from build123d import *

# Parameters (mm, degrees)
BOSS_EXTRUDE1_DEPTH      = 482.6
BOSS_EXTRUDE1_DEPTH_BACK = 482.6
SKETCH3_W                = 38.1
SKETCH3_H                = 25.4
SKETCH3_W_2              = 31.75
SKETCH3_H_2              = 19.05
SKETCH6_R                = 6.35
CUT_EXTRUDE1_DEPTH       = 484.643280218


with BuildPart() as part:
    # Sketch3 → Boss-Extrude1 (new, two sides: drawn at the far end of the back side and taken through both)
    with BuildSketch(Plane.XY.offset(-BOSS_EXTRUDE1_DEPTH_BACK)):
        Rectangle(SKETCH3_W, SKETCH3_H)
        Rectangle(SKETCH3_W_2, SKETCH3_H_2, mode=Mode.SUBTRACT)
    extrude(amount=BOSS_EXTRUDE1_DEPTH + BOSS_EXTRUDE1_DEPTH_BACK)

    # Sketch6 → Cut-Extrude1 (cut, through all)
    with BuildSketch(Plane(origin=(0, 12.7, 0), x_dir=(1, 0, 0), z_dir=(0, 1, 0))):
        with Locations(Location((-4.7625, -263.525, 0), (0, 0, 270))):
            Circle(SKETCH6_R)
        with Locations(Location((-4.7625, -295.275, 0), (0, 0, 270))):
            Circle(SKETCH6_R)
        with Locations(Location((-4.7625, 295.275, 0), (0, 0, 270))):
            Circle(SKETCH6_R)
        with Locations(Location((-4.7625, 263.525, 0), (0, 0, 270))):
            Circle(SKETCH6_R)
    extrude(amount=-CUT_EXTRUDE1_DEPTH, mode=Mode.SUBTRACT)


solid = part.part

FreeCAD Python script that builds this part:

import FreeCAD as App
import Part
import Sketcher

V = App.Vector
Q = App.Units.Quantity

doc = App.newDocument("Part")
body = doc.addObject("PartDesign::Body", "Body")

sketch1 = body.newObject("Sketcher::SketchObject", "Sketch")
sketch1.AttachmentSupport = (doc.getObject("XY_Plane"), [""])
sketch1.MapMode = "FlatFace"
sketch1.addGeometry(Part.LineSegment(V(-19, 13, 0), V(-19, -13, 0)), False)
sketch1.addGeometry(Part.LineSegment(V(-19, -13, 0), V(19, -13, 0)), False)
sketch1.addGeometry(Part.LineSegment(V(19, -13, 0), V(19, 13, 0)), False)
sketch1.addGeometry(Part.LineSegment(V(19, 13, 0), V(-19, 13, 0)), False)
sketch1.addGeometry(Part.LineSegment(V(16, -10, 0), V(-16, -10, 0)), False)
sketch1.addGeometry(Part.LineSegment(V(-16, -10, 0), V(-16, 10, 0)), False)
sketch1.addGeometry(Part.LineSegment(V(-16, 10, 0), V(16, 10, 0)), False)
sketch1.addGeometry(Part.LineSegment(V(16, 10, 0), V(16, -10, 0)), False)
sketch1.addConstraint(Sketcher.Constraint("Coincident", 0, 2, 1, 1))
sketch1.addConstraint(Sketcher.Constraint("Coincident", 1, 2, 2, 1))
sketch1.addConstraint(Sketcher.Constraint("Coincident", 2, 2, 3, 1))
sketch1.addConstraint(Sketcher.Constraint("Coincident", 3, 2, 0, 1))
sketch1.addConstraint(Sketcher.Constraint("Coincident", 4, 2, 5, 1))
sketch1.addConstraint(Sketcher.Constraint("Coincident", 5, 2, 6, 1))
sketch1.addConstraint(Sketcher.Constraint("Coincident", 6, 2, 7, 1))
sketch1.addConstraint(Sketcher.Constraint("Coincident", 7, 2, 4, 1))
sketch1.addConstraint(Sketcher.Constraint("Vertical", 0))
sketch1.addConstraint(Sketcher.Constraint("Horizontal", 1))
sketch1.addConstraint(Sketcher.Constraint("Vertical", 2))
sketch1.addConstraint(Sketcher.Constraint("Horizontal", 3))
sketch1.addConstraint(Sketcher.Constraint("Horizontal", 4))
sketch1.addConstraint(Sketcher.Constraint("Vertical", 5))
sketch1.addConstraint(Sketcher.Constraint("Horizontal", 6))
sketch1.addConstraint(Sketcher.Constraint("Vertical", 7))
sketch1.addConstraint(Sketcher.Constraint("Symmetric", 0, 2, 2, 2, -1, 1))
sketch1.addConstraint(Sketcher.Constraint("Symmetric", 4, 2, 6, 2, -1, 1))
sketch1.addConstraint(Sketcher.Constraint("DistanceY", 0, 2, 0, 1, Q("1 in")))
sketch1.addConstraint(Sketcher.Constraint("DistanceX", 1, 1, 1, 2, Q("1.5 in")))
sketch1.addConstraint(Sketcher.Constraint("DistanceX", 4, 2, 4, 1, Q("1.25 in")))
sketch1.addConstraint(Sketcher.Constraint("DistanceY", 5, 1, 5, 2, Q("0.75 in")))
pad1 = body.newObject("PartDesign::Pad", "Pad")
pad1.Profile = sketch1
pad1.Type = "TwoLengths"
pad1.Length = Q("19 in")
pad1.Length2 = Q("19 in")

sketch2 = body.newObject("Sketcher::SketchObject", "Sketch001")
sketch2.AttachmentSupport = (doc.getObject("XZ_Plane"), [""])
sketch2.MapMode = "FlatFace"
sketch2.AttachmentOffset = App.Placement(V(0, 0, -0.5 * 25.4), App.Rotation())
sketch2.addGeometry(Part.Circle(V(-5, 264, 0), V(0, 0, 1), 6), False)
sketch2.addGeometry(Part.Circle(V(-5, 295, 0), V(0, 0, 1), 6), False)
sketch2.addGeometry(Part.Circle(V(-5, -295, 0), V(0, 0, 1), 6), False)
sketch2.addGeometry(Part.Circle(V(-5, -264, 0), V(0, 0, 1), 6), False)
sketch2.addConstraint(Sketcher.Constraint("Equal", 0, 1))
sketch2.addConstraint(Sketcher.Constraint("Equal", 1, 2))
sketch2.addConstraint(Sketcher.Constraint("Equal", 2, 3))
sketch2.addConstraint(Sketcher.Constraint("Symmetric", 1, 3, 2, 3, -1))
sketch2.addConstraint(Sketcher.Constraint("Symmetric", 0, 3, 3, 3, -1))
sketch2.addConstraint(Sketcher.Constraint("Vertical", 0, 3, 1, 3))
sketch2.addConstraint(Sketcher.Constraint("Diameter", 0, Q("0.5 in")))
sketch2.addConstraint(Sketcher.Constraint("DistanceY", 2, 3, 0, 3, Q("22 in")))
sketch2.addConstraint(Sketcher.Constraint("DistanceY", 0, 3, 1, 3, Q("1.25 in")))
sketch2.addConstraint(Sketcher.Constraint("DistanceX", 0, 3, -1, 1, Q("0.1875 in")))
pocket1 = body.newObject("PartDesign::Pocket", "Pocket")
pocket1.Profile = sketch2
pocket1.Type = "ThroughAll"
pocket1.Reversed = True

doc.recompute()
